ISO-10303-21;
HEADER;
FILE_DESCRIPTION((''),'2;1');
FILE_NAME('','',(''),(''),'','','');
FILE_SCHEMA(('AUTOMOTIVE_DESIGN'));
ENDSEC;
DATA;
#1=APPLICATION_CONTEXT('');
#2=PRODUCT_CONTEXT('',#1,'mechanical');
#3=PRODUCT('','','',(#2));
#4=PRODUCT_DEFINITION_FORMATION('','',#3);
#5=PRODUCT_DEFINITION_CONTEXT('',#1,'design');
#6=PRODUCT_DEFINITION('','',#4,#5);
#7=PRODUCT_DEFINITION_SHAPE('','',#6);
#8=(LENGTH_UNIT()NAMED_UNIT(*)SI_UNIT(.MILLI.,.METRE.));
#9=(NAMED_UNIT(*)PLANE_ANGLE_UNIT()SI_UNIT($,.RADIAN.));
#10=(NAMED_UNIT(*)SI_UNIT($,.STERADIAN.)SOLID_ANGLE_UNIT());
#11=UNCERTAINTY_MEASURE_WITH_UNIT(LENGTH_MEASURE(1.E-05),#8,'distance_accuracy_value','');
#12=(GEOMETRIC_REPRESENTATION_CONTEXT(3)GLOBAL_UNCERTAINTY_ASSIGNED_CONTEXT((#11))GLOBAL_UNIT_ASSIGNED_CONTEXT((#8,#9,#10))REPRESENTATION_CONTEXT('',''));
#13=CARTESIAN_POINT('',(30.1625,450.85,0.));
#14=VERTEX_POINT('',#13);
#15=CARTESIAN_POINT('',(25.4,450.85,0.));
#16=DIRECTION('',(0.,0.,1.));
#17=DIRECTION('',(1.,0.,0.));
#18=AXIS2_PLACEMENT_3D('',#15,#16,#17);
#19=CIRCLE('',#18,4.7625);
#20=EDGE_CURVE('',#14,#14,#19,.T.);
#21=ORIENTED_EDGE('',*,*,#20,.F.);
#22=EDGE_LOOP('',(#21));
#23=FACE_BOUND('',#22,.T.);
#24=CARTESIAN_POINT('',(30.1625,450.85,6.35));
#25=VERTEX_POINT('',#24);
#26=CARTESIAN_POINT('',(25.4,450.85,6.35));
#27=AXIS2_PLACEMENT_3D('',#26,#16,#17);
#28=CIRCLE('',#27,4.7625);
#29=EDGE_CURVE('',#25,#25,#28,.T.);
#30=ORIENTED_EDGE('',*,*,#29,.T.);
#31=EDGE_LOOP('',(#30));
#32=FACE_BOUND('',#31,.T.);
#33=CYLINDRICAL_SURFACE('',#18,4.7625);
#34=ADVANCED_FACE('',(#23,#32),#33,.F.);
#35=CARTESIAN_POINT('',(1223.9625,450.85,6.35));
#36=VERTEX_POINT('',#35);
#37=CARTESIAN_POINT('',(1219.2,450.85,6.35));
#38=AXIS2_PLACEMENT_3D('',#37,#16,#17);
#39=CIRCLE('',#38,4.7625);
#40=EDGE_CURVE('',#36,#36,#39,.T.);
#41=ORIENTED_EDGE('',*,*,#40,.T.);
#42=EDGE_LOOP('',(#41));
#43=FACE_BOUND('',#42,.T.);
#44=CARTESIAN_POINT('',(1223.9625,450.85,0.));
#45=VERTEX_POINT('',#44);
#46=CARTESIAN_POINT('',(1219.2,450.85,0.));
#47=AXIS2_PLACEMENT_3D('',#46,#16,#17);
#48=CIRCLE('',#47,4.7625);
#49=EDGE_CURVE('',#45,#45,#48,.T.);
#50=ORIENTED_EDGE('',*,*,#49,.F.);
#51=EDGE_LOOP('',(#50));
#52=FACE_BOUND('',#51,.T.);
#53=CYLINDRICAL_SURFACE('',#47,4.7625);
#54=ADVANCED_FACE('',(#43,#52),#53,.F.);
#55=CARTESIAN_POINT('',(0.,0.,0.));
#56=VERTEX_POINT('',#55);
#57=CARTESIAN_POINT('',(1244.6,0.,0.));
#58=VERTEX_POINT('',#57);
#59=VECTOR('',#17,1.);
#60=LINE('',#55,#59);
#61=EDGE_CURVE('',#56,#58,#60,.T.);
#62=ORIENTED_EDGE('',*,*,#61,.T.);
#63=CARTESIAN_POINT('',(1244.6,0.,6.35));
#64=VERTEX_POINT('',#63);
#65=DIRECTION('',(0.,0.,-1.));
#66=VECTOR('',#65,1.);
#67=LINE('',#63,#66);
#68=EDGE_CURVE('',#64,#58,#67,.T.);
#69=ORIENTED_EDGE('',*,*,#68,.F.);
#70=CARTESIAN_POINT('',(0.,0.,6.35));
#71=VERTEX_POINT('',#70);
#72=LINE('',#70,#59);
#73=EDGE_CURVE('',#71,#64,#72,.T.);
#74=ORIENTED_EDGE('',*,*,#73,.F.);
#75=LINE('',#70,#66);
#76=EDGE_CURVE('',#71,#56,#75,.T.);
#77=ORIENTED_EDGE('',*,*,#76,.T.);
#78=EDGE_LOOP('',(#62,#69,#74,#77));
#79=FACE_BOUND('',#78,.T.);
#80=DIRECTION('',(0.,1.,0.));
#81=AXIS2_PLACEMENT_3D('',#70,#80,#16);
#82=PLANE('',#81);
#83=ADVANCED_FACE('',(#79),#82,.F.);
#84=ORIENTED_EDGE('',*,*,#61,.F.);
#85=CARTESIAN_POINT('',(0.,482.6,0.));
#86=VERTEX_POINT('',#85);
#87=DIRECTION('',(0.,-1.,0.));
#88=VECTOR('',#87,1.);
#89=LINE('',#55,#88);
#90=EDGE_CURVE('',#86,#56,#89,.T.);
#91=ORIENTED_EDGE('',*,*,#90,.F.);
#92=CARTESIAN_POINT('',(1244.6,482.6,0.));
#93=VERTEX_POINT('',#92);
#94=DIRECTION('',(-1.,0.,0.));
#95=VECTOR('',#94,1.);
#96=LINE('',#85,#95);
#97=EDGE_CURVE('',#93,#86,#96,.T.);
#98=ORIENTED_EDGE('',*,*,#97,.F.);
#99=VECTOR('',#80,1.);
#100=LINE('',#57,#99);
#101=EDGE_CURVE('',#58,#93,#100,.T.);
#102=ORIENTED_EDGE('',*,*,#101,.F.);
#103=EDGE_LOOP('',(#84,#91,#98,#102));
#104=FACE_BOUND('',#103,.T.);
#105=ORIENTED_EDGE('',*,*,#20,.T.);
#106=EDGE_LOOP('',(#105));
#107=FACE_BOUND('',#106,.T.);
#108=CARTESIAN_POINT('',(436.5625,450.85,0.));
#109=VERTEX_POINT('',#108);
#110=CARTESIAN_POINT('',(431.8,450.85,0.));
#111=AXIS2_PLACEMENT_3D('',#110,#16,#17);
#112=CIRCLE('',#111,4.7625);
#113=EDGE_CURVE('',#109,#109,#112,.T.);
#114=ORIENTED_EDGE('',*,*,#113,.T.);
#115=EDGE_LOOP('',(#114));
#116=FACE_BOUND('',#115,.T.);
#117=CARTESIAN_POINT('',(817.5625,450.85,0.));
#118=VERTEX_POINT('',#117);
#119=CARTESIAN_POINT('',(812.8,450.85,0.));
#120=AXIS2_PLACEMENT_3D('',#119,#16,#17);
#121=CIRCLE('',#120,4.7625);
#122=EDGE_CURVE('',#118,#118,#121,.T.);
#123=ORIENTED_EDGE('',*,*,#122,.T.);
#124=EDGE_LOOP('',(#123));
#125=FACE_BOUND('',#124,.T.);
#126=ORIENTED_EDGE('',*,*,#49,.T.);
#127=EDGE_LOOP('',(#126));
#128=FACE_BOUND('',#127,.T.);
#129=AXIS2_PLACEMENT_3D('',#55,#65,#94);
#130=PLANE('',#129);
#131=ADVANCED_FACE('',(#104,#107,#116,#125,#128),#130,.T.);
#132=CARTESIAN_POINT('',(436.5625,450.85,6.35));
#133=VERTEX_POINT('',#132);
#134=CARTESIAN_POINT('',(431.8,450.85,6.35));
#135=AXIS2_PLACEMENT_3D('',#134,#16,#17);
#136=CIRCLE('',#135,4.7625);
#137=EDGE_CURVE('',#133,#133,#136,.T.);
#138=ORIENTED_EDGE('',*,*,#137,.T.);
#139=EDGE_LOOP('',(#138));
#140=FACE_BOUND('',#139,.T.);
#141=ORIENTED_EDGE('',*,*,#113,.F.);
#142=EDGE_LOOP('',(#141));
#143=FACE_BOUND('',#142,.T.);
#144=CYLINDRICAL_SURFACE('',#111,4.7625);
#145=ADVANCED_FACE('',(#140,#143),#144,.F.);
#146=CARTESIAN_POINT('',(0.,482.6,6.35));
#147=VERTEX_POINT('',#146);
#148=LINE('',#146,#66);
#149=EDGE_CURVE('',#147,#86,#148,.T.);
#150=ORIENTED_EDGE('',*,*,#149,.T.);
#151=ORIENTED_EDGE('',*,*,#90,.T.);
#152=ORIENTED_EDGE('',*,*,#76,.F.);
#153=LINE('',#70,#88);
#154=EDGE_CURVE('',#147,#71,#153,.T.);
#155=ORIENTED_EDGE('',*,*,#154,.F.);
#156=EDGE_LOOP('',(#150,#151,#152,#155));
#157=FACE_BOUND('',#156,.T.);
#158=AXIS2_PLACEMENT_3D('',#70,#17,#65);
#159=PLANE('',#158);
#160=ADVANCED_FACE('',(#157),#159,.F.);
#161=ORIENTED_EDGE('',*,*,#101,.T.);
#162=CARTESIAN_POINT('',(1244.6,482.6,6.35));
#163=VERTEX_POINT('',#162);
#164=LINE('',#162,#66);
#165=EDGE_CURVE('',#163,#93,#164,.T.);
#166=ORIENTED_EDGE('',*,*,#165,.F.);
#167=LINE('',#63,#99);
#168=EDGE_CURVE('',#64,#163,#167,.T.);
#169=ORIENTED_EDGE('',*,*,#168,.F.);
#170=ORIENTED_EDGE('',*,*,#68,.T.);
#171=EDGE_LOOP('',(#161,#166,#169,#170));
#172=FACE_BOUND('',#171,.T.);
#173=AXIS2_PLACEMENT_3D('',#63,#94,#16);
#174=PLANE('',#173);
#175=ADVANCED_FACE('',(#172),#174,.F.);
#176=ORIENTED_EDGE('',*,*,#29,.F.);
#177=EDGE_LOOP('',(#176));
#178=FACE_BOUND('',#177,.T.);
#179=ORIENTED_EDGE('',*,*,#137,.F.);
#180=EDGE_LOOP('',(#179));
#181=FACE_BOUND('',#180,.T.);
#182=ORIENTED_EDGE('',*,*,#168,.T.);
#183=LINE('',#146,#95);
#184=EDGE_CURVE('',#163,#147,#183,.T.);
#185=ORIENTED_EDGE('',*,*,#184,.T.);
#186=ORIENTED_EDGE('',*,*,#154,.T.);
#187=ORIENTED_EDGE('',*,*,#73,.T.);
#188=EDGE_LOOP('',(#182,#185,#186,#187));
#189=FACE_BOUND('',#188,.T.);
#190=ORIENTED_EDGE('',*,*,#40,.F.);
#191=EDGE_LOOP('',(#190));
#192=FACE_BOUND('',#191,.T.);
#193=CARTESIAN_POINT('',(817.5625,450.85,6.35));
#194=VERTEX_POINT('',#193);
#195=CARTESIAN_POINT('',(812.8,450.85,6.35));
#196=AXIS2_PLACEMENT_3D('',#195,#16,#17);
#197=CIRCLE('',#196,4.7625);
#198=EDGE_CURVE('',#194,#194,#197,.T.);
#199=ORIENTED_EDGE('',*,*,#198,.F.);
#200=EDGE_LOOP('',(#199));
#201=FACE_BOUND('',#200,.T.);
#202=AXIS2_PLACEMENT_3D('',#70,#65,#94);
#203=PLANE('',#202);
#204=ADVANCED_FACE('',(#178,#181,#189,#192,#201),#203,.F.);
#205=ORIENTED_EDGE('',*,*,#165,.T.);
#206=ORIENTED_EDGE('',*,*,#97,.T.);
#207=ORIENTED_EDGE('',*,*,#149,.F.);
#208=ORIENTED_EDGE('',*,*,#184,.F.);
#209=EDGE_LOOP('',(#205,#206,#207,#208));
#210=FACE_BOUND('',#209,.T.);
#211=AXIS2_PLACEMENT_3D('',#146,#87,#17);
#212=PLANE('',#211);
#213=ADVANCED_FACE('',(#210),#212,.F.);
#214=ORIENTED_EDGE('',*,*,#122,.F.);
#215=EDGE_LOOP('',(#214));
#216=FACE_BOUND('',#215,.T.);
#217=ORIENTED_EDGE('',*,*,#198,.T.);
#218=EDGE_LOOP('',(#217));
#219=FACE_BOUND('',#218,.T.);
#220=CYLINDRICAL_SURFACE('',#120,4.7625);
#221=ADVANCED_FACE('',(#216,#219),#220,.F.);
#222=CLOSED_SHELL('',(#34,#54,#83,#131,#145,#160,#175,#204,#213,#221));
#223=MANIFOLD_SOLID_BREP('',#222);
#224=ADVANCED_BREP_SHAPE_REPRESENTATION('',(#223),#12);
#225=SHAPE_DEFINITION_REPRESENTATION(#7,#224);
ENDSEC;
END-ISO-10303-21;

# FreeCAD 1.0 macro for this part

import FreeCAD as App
import Part
import Sketcher

V = App.Vector
Q = App.Units.Quantity


def add_polygon(sketch, points):
    """Adds a closed chain of lines whose ends are joined by coincident constraints."""
    first, n = sketch.GeometryCount, len(points)
    for a, b in zip(points, points[1:] + points[:1]):
        sketch.addGeometry(Part.LineSegment(App.Vector(*a, 0), App.Vector(*b, 0)), False)
    for i in range(n):
        sketch.addConstraint(Sketcher.Constraint("Coincident", first + i, 2, first + (i + 1) % n, 1))

doc = App.newDocument("Part")
body = doc.addObject("PartDesign::Body", "Body")

sketch1 = body.newObject("Sketcher::SketchObject", "Sketch")
sketch1.AttachmentSupport = (doc.getObject("XY_Plane"), [""])
sketch1.MapMode = "FlatFace"
add_polygon(sketch1, [(0, 482.6), (0, 0), (1244.6, 0), (1244.6, 482.6)])
sketch1.addConstraint([
    Sketcher.Constraint("Vertical", 0),
    Sketcher.Constraint("Horizontal", 1),
    Sketcher.Constraint("Vertical", 2),
    Sketcher.Constraint("Horizontal", 3),
    Sketcher.Constraint("Coincident", 0, 2, -1, 1),
    Sketcher.Constraint("DistanceX", 1, 1, 1, 2, Q("49 in")),
    Sketcher.Constraint("DistanceY", 0, 2, 0, 1, Q("19 in")),
])
pad1 = body.newObject("PartDesign::Pad", "Pad")
pad1.Profile = sketch1
pad1.Length = Q("0.25 in")

sketch2 = body.newObject("Sketcher::SketchObject", "Sketch001")
sketch2.AttachmentSupport = (doc.getObject("XY_Plane"), [""])
sketch2.MapMode = "FlatFace"
sketch2.AttachmentOffset = App.Placement(V(0, 0, 0.25 * 25.4), App.Rotation())
sketch2.addGeometry([
    Part.Circle(V(25.4, 450.85, 0), V(0, 0, 1), 4.7625),
    Part.Circle(V(431.8, 450.85, 0), V(0, 0, 1), 4.7625),
    Part.Circle(V(812.8, 450.85, 0), V(0, 0, 1), 4.7625),
    Part.Circle(V(1219.2, 450.85, 0), V(0, 0, 1), 4.7625),
], False)
sketch2.addConstraint([
    Sketcher.Constraint("Equal", 0, 1),
    Sketcher.Constraint("Equal", 1, 2),
    Sketcher.Constraint("Equal", 2, 3),
    Sketcher.Constraint("Horizontal", 0, 3, 1, 3),
    Sketcher.Constraint("Horizontal", 1, 3, 2, 3),
    Sketcher.Constraint("Horizontal", 2, 3, 3, 3),
    Sketcher.Constraint("Diameter", 0, Q("0.375 in")),
    Sketcher.Constraint("DistanceX", -1, 1, 0, 3, Q("1 in")),
    Sketcher.Constraint("DistanceX", -1, 1, 1, 3, Q("17 in")),
    Sketcher.Constraint("DistanceX", -1, 1, 2, 3, Q("32 in")),
    Sketcher.Constraint("DistanceX", -1, 1, 3, 3, Q("48 in")),
    Sketcher.Constraint("DistanceY", -1, 1, 0, 3, Q("17.75 in")),
])
pocket1 = body.newObject("PartDesign::Pocket", "Pocket")
pocket1.Profile = sketch2
pocket1.Type = "ThroughAll"

doc.recompute()
